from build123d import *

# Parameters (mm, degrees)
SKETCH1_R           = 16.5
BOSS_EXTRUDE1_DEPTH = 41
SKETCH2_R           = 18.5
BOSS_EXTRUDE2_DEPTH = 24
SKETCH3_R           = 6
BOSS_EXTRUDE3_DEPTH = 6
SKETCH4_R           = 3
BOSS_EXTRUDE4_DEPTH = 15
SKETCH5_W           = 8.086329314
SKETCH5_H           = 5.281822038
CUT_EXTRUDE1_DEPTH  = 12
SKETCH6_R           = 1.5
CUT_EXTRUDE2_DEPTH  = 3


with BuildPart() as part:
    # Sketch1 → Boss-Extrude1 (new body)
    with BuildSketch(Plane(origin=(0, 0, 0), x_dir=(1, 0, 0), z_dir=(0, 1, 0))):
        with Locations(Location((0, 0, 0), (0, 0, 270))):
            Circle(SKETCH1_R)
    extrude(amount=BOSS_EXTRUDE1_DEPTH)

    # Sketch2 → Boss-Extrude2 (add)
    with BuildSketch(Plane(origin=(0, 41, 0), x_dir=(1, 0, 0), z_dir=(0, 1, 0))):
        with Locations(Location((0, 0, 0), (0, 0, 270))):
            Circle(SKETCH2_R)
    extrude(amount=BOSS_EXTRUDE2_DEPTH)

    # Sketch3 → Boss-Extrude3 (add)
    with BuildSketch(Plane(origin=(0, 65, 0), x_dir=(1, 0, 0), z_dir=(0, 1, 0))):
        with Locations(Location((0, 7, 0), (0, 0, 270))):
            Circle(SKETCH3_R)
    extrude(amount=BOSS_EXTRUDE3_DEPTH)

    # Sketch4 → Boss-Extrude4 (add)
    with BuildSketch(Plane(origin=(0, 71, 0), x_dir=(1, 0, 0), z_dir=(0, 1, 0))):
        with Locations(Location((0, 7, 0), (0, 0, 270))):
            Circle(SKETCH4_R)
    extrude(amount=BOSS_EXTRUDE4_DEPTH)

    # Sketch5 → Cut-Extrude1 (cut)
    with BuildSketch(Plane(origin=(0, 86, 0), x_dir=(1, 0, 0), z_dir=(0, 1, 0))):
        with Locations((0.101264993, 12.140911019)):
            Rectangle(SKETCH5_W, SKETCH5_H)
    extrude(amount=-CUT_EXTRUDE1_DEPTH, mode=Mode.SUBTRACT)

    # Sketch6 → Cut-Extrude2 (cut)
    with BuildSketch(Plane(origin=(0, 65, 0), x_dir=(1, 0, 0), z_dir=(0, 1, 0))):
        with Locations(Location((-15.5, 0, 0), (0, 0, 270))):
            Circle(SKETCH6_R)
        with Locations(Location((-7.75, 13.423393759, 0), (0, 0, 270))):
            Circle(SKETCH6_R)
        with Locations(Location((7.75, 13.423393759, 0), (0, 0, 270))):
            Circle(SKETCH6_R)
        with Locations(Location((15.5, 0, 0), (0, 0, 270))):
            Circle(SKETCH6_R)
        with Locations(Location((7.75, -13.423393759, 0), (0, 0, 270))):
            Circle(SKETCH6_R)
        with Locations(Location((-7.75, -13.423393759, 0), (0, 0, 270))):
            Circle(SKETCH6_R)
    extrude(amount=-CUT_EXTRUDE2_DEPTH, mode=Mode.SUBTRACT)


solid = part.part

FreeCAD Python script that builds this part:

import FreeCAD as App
import Part
import Sketcher

doc = App.newDocument("Part")
body = doc.addObject("PartDesign::Body", "Body")

# Sketch on XZ plane
sketch1 = doc.addObject("Sketcher::SketchObject", "Sketch")
body.addObject(sketch1)
sketch1.AttachmentSupport = (doc.XZ_Plane, [""])
sketch1.MapMode = "FlatFace"
sketch1.addGeometry(Part.Circle(App.Vector(0, 0, 0), App.Vector(0, 0, 1), 16), False)
sketch1.addConstraint([
    Sketcher.Constraint("Coincident", 0, 3, -1, 1),
    Sketcher.Constraint("Diameter", 0, 33.0),
])
pad1 = doc.addObject("PartDesign::Pad", "Pad")
body.addObject(pad1)
pad1.Profile = sketch1
pad1.Length = 41
pad1.Reversed = True

# Sketch on XZ plane
sketch2 = doc.addObject("Sketcher::SketchObject", "Sketch001")
body.addObject(sketch2)
sketch2.AttachmentSupport = (doc.XZ_Plane, [""])
sketch2.MapMode = "FlatFace"
sketch2.AttachmentOffset = App.Placement(App.Vector(0, 0, -41), App.Rotation())
sketch2.addGeometry(Part.Circle(App.Vector(0, 0, 0), App.Vector(0, 0, 1), 18), False)
sketch2.addConstraint([
    Sketcher.Constraint("Coincident", 0, 3, -1, 1),
    Sketcher.Constraint("Diameter", 0, 37.0),
])
pad2 = doc.addObject("PartDesign::Pad", "Pad001")
body.addObject(pad2)
pad2.Profile = sketch2
pad2.Length = 24
pad2.Reversed = True

# Sketch on XZ plane
sketch3 = doc.addObject("Sketcher::SketchObject", "Sketch002")
body.addObject(sketch3)
sketch3.AttachmentSupport = (doc.XZ_Plane, [""])
sketch3.MapMode = "FlatFace"
sketch3.AttachmentOffset = App.Placement(App.Vector(0, 0, -65), App.Rotation())
sketch3.addGeometry(Part.Circle(App.Vector(0, -7, 0), App.Vector(0, 0, 1), 6), False)
sketch3.addConstraint([
    Sketcher.Constraint("PointOnObject", 0, 3, -2),
    Sketcher.Constraint("Diameter", 0, 12.0),
    Sketcher.Constraint("DistanceY", 0, 3, -1, 1, 7.0),
])
pad3 = doc.addObject("PartDesign::Pad", "Pad002")
body.addObject(pad3)
pad3.Profile = sketch3
pad3.Length = 6
pad3.Reversed = True

# Sketch on XZ plane
sketch4 = doc.addObject("Sketcher::SketchObject", "Sketch003")
body.addObject(sketch4)
sketch4.AttachmentSupport = (doc.XZ_Plane, [""])
sketch4.MapMode = "FlatFace"
sketch4.AttachmentOffset = App.Placement(App.Vector(0, 0, -71), App.Rotation())
sketch4.addGeometry(Part.Circle(App.Vector(0, -7, 0), App.Vector(0, 0, 1), 3), False)
sketch4.addConstraint([
    Sketcher.Constraint("PointOnObject", 0, 3, -2),
    Sketcher.Constraint("Diameter", 0, 6.0),
    Sketcher.Constraint("DistanceY", 0, 3, -1, 1, 7.0),
])
pad4 = doc.addObject("PartDesign::Pad", "Pad003")
body.addObject(pad4)
pad4.Profile = sketch4
pad4.Length = 15
pad4.Reversed = True

# Sketch on XZ plane
sketch5 = doc.addObject("Sketcher::SketchObject", "Sketch004")
body.addObject(sketch5)
sketch5.AttachmentSupport = (doc.XZ_Plane, [""])
sketch5.MapMode = "FlatFace"
sketch5.AttachmentOffset = App.Placement(App.Vector(0, 0, -86), App.Rotation())
sketch5.addGeometry([
    Part.LineSegment(App.Vector(-4, -15, 0), App.Vector(-4, -10, 0)),
    Part.LineSegment(App.Vector(-4, -10, 0), App.Vector(4, -10, 0)),
    Part.LineSegment(App.Vector(4, -10, 0), App.Vector(4, -15, 0)),
    Part.LineSegment(App.Vector(4, -15, 0), App.Vector(-4, -15, 0)),
], False)
sketch5.addConstraint([
    Sketcher.Constraint("Coincident", 0, 2, 1, 1),
    Sketcher.Constraint("Coincident", 1, 2, 2, 1),
    Sketcher.Constraint("Coincident", 2, 2, 3, 1),
    Sketcher.Constraint("Coincident", 3, 2, 0, 1),
    Sketcher.Constraint("Vertical", 0),
    Sketcher.Constraint("Horizontal", 1),
    Sketcher.Constraint("Vertical", 2),
    Sketcher.Constraint("Horizontal", 3),
    Sketcher.Constraint("DistanceY", 0, 2, -1, 1, 9.5),
    Sketcher.Constraint("DistanceX", 1, 1, 1, 2, 8.086329),
    Sketcher.Constraint("DistanceX", 0, 2, -1, 1, 3.9419),
    Sketcher.Constraint("DistanceY", 0, 1, 0, 2, 5.281822),
])
pocket1 = doc.addObject("PartDesign::Pocket", "Pocket")
body.addObject(pocket1)
pocket1.Profile = sketch5
pocket1.Length = 12
pocket1.Reversed = True

# Sketch on XZ plane
sketch6 = doc.addObject("Sketcher::SketchObject", "Sketch005")
body.addObject(sketch6)
sketch6.AttachmentSupport = (doc.XZ_Plane, [""])
sketch6.MapMode = "FlatFace"
sketch6.AttachmentOffset = App.Placement(App.Vector(0, 0, -65), App.Rotation())
sketch6.addGeometry([
    Part.Circle(App.Vector(-15.5, 0, 0), App.Vector(0, 0, 1), 1.5),  # 0
    Part.Circle(App.Vector(-7.8, -13.4, 0), App.Vector(0, 0, 1), 1.5),  # 1
    Part.Circle(App.Vector(7.8, -13.4, 0), App.Vector(0, 0, 1), 1.5),  # 2
    Part.Circle(App.Vector(15.5, 0, 0), App.Vector(0, 0, 1), 1.5),  # 3
    Part.Circle(App.Vector(7.8, 13.4, 0), App.Vector(0, 0, 1), 1.5),  # 4
    Part.Circle(App.Vector(-7.8, 13.4, 0), App.Vector(0, 0, 1), 1.5),  # 5
], False)
sketch6.addConstraint([
    Sketcher.Constraint("Equal", 0, 1),
    Sketcher.Constraint("Equal", 1, 2),
    Sketcher.Constraint("Equal", 2, 3),
    Sketcher.Constraint("Equal", 3, 4),
    Sketcher.Constraint("Equal", 4, 5),
    Sketcher.Constraint("Symmetric", 0, 3, 3, 3, -1, 1),
    Sketcher.Constraint("Symmetric", 1, 3, 4, 3, -1, 1),
    Sketcher.Constraint("Symmetric", 2, 3, 5, 3, -1, 1),
    Sketcher.Constraint("Symmetric", 1, 3, 2, 3, -2),
    Sketcher.Constraint("PointOnObject", 0, 3, -1),
    Sketcher.Constraint("Diameter", 0, 3.0),
    Sketcher.Constraint("DistanceX", 0, 3, 3, 3, 31.0),
    Sketcher.Constraint("DistanceX", 1, 3, 2, 3, 15.5),
    Sketcher.Constraint("DistanceY", 1, 3, -1, 1, 13.423394),
])
pocket2 = doc.addObject("PartDesign::Pocket", "Pocket001")
body.addObject(pocket2)
pocket2.Profile = sketch6
pocket2.Length = 3
pocket2.Reversed = True

doc.recompute()
